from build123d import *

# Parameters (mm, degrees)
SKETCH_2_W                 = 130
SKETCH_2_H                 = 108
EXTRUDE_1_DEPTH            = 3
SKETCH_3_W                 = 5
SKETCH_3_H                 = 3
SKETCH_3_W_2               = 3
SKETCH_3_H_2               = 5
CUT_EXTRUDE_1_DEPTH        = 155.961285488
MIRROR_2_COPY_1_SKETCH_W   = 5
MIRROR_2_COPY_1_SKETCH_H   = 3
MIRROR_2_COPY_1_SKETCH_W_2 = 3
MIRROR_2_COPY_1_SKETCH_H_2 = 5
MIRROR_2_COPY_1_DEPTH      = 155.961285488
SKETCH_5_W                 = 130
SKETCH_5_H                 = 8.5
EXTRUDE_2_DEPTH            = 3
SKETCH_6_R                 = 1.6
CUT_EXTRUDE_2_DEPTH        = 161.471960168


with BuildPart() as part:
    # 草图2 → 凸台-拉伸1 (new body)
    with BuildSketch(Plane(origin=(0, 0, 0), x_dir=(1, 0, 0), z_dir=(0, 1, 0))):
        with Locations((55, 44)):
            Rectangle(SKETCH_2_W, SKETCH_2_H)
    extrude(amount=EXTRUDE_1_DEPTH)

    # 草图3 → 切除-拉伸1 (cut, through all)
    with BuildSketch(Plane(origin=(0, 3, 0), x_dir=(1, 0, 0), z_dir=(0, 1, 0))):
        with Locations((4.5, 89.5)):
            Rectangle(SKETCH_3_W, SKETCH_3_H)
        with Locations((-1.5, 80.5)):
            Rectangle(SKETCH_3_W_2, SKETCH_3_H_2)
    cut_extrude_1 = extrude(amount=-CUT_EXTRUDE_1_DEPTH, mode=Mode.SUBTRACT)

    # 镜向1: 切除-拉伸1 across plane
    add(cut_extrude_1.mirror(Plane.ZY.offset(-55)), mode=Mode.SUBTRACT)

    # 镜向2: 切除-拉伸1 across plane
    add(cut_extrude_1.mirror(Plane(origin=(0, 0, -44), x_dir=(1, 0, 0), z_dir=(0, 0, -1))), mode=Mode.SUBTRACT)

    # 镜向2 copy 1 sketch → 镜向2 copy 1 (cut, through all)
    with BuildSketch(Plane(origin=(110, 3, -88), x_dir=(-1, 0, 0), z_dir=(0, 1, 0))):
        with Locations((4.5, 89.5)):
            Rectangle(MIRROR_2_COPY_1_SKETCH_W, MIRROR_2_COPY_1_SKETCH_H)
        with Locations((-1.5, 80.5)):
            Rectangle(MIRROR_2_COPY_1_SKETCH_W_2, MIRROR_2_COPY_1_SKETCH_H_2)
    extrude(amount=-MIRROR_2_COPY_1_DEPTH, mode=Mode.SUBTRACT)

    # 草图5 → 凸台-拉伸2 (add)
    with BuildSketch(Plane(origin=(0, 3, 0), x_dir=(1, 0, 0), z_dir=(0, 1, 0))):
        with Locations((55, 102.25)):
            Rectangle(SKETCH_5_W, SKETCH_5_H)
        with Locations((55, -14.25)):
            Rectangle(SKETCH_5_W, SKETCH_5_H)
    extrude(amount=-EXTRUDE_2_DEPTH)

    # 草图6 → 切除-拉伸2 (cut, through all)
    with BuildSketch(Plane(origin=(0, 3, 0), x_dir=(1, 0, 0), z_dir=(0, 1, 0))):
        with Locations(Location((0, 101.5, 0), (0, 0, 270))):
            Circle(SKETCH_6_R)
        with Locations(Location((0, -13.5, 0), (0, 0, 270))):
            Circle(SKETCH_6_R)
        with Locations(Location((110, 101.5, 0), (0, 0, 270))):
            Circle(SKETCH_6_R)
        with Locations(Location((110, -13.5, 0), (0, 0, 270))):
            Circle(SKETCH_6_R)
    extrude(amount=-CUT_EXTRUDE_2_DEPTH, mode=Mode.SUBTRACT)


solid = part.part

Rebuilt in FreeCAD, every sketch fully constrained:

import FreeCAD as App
import Part
import Sketcher

V = App.Vector


def add_polygon(sketch, points):
    """Adds a closed chain of lines whose ends are joined by coincident constraints."""
    first, n = sketch.GeometryCount, len(points)
    for a, b in zip(points, points[1:] + points[:1]):
        sketch.addGeometry(Part.LineSegment(App.Vector(*a, 0), App.Vector(*b, 0)), False)
    for i in range(n):
        sketch.addConstraint(Sketcher.Constraint("Coincident", first + i, 2, first + (i + 1) % n, 1))

doc = App.newDocument("Part")
body = doc.addObject("PartDesign::Body", "Body")

sketch1 = doc.addObject("Sketcher::SketchObject", "Sketch")
body.addObject(sketch1)
sketch1.AttachmentSupport = (doc.XZ_Plane, [""])
sketch1.MapMode = "FlatFace"
add_polygon(sketch1, [(-10, -98), (-10, 10), (120, 10), (120, -98)])
sketch1.addConstraint(Sketcher.Constraint("Vertical", 0))
sketch1.addConstraint(Sketcher.Constraint("Horizontal", 1))
sketch1.addConstraint(Sketcher.Constraint("Vertical", 2))
sketch1.addConstraint(Sketcher.Constraint("Horizontal", 3))
sketch1.addConstraint(Sketcher.Constraint("DistanceX", 1, 1, 1, 2, 130.0))
sketch1.addConstraint(Sketcher.Constraint("DistanceY", 0, 1, 0, 2, 108.0))
sketch1.addConstraint(Sketcher.Constraint("DistanceX", 0, 2, -1, 1, 10.0))
sketch1.addConstraint(Sketcher.Constraint("DistanceY", -1, 1, 0, 2, 10.0))
pad1 = doc.addObject("PartDesign::Pad", "Pad")
body.addObject(pad1)
pad1.Profile = sketch1
pad1.Length = 3
pad1.Reversed = True

sketch2 = doc.addObject("Sketcher::SketchObject", "Sketch001")
body.addObject(sketch2)
sketch2.AttachmentSupport = (doc.XZ_Plane, [""])
sketch2.MapMode = "FlatFace"
sketch2.AttachmentOffset = App.Placement(V(0, 0, -3), App.Rotation())
add_polygon(sketch2, [(2, -91), (2, -88), (7, -88), (7, -91)])
add_polygon(sketch2, [(-3, -83), (-3, -78), (0, -78), (0, -83)])
sketch2.addConstraint(Sketcher.Constraint("Vertical", 0))
sketch2.addConstraint(Sketcher.Constraint("Horizontal", 1))
sketch2.addConstraint(Sketcher.Constraint("Vertical", 2))
sketch2.addConstraint(Sketcher.Constraint("Horizontal", 3))
sketch2.addConstraint(Sketcher.Constraint("Vertical", 4))
sketch2.addConstraint(Sketcher.Constraint("Horizontal", 5))
sketch2.addConstraint(Sketcher.Constraint("Vertical", 6))
sketch2.addConstraint(Sketcher.Constraint("Horizontal", 7))
sketch2.addConstraint(Sketcher.Constraint("PointOnObject", 5, 2, -2))
sketch2.addConstraint(Sketcher.Constraint("Equal", 7, 0))
sketch2.addConstraint(Sketcher.Constraint("Equal", 3, 4))
sketch2.addConstraint(Sketcher.Constraint("DistanceX", 1, 1, 1, 2, 5.0))
sketch2.addConstraint(Sketcher.Constraint("DistanceX", 5, 1, 5, 2, 3.0))
sketch2.addConstraint(Sketcher.Constraint("DistanceX", -1, 1, 0, 2, 2.0))
sketch2.addConstraint(Sketcher.Constraint("DistanceY", 0, 2, -1, 1, 88.0))
sketch2.addConstraint(Sketcher.Constraint("DistanceY", 4, 2, -1, 1, 78.0))
pocket1 = doc.addObject("PartDesign::Pocket", "Pocket")
body.addObject(pocket1)
pocket1.Profile = sketch2
pocket1.Type = "ThroughAll"
pocket1.Reversed = True
doc.recompute()

datumplane = doc.addObject("PartDesign::Plane", "DatumPlane")
body.addObject(datumplane)
datumplane.AttachmentSupport = (doc.YZ_Plane, [""])
datumplane.MapMode = "FlatFace"
datumplane.AttachmentOffset = App.Placement(V(0, 0, 55), App.Rotation())
mirrored = doc.addObject("PartDesign::Mirrored", "Mirrored")
body.addObject(mirrored)
mirrored.Originals = [pocket1]
mirrored.MirrorPlane = (datumplane, [""])
body.Tip = mirrored
doc.recompute()

datumplane2 = doc.addObject("PartDesign::Plane", "DatumPlane001")
body.addObject(datumplane2)
datumplane2.AttachmentSupport = (doc.XY_Plane, [""])
datumplane2.MapMode = "FlatFace"
datumplane2.AttachmentOffset = App.Placement(V(0, 0, -44), App.Rotation())
mirrored2 = doc.addObject("PartDesign::Mirrored", "Mirrored001")
body.addObject(mirrored2)
mirrored2.Originals = [pocket1]
mirrored2.MirrorPlane = (datumplane2, [""])
body.Tip = mirrored2

sketch3 = doc.addObject("Sketcher::SketchObject", "Sketch002")
body.addObject(sketch3)
sketch3.AttachmentSupport = (doc.XZ_Plane, [""])
sketch3.MapMode = "FlatFace"
sketch3.AttachmentOffset = App.Placement(V(0, 0, -3), App.Rotation())
add_polygon(sketch3, [(108, 3), (108, 0), (103, 0), (103, 3)])
add_polygon(sketch3, [(113, -5), (113, -10), (110, -10), (110, -5)])
sketch3.addConstraint(Sketcher.Constraint("Vertical", 0))
sketch3.addConstraint(Sketcher.Constraint("Horizontal", 1))
sketch3.addConstraint(Sketcher.Constraint("Vertical", 2))
sketch3.addConstraint(Sketcher.Constraint("Horizontal", 3))
sketch3.addConstraint(Sketcher.Constraint("Vertical", 4))
sketch3.addConstraint(Sketcher.Constraint("Horizontal", 5))
sketch3.addConstraint(Sketcher.Constraint("Vertical", 6))
sketch3.addConstraint(Sketcher.Constraint("Horizontal", 7))
sketch3.addConstraint(Sketcher.Constraint("PointOnObject", 0, 2, -1))
sketch3.addConstraint(Sketcher.Constraint("Equal", 7, 0))
sketch3.addConstraint(Sketcher.Constraint("Equal", 3, 4))
sketch3.addConstraint(Sketcher.Constraint("DistanceX", 1, 2, 1, 1, 5.0))
sketch3.addConstraint(Sketcher.Constraint("DistanceX", 5, 2, 5, 1, 3.0))
sketch3.addConstraint(Sketcher.Constraint("DistanceX", -1, 1, 0, 2, 108.0))
sketch3.addConstraint(Sketcher.Constraint("DistanceX", -1, 1, 4, 2, 113.0))
sketch3.addConstraint(Sketcher.Constraint("DistanceY", 4, 2, -1, 1, 10.0))
pocket2 = doc.addObject("PartDesign::Pocket", "Pocket001")
body.addObject(pocket2)
pocket2.Profile = sketch3
pocket2.Type = "ThroughAll"
pocket2.Reversed = True

sketch4 = doc.addObject("Sketcher::SketchObject", "Sketch003")
body.addObject(sketch4)
sketch4.AttachmentSupport = (doc.XZ_Plane, [""])
sketch4.MapMode = "FlatFace"
sketch4.AttachmentOffset = App.Placement(V(0, 0, -3), App.Rotation())
add_polygon(sketch4, [(-10, -106), (-10, -98), (120, -98), (120, -106)])
add_polygon(sketch4, [(-10, 10), (-10, 18), (120, 18), (120, 10)])
sketch4.addConstraint(Sketcher.Constraint("Vertical", 0))
sketch4.addConstraint(Sketcher.Constraint("Horizontal", 1))
sketch4.addConstraint(Sketcher.Constraint("Vertical", 2))
sketch4.addConstraint(Sketcher.Constraint("Horizontal", 3))
sketch4.addConstraint(Sketcher.Constraint("Vertical", 4))
sketch4.addConstraint(Sketcher.Constraint("Horizontal", 5))
sketch4.addConstraint(Sketcher.Constraint("Vertical", 6))
sketch4.addConstraint(Sketcher.Constraint("Horizontal", 7))
sketch4.addConstraint(Sketcher.Constraint("Vertical", 3, 2, 4, 2))
sketch4.addConstraint(Sketcher.Constraint("Vertical", 2, 2, 5, 2))
sketch4.addConstraint(Sketcher.Constraint("Equal", 2, 4))
sketch4.addConstraint(Sketcher.Constraint("DistanceX", 1, 1, 1, 2, 130.0))
sketch4.addConstraint(Sketcher.Constraint("DistanceY", 0, 1, 0, 2, 8.5))
sketch4.addConstraint(Sketcher.Constraint("DistanceX", 0, 2, -1, 1, 10.0))
sketch4.addConstraint(Sketcher.Constraint("DistanceY", 0, 2, -1, 1, 98.0))
sketch4.addConstraint(Sketcher.Constraint("DistanceY", -1, 1, 6, 2, 10.0))
pad2 = doc.addObject("PartDesign::Pad", "Pad001")
body.addObject(pad2)
pad2.Profile = sketch4
pad2.Length = 3

sketch5 = doc.addObject("Sketcher::SketchObject", "Sketch004")
body.addObject(sketch5)
sketch5.AttachmentSupport = (doc.XZ_Plane, [""])
sketch5.MapMode = "FlatFace"
sketch5.AttachmentOffset = App.Placement(V(0, 0, -3), App.Rotation())
sketch5.addGeometry(Part.Circle(V(0, -101.5, 0), V(0, 0, 1), 1.6), False)
sketch5.addGeometry(Part.Circle(V(0, 13.5, 0), V(0, 0, 1), 1.6), False)
sketch5.addGeometry(Part.Circle(V(110, -101.5, 0), V(0, 0, 1), 1.6), False)
sketch5.addGeometry(Part.Circle(V(110, 13.5, 0), V(0, 0, 1), 1.6), False)
sketch5.addConstraint(Sketcher.Constraint("Equal", 0, 1))
sketch5.addConstraint(Sketcher.Constraint("Equal", 1, 2))
sketch5.addConstraint(Sketcher.Constraint("Equal", 2, 3))
sketch5.addConstraint(Sketcher.Constraint("PointOnObject", 0, 3, -2))
sketch5.addConstraint(Sketcher.Constraint("PointOnObject", 1, 3, -2))
sketch5.addConstraint(Sketcher.Constraint("Horizontal", 0, 3, 2, 3))
sketch5.addConstraint(Sketcher.Constraint("Horizontal", 1, 3, 3, 3))
sketch5.addConstraint(Sketcher.Constraint("Vertical", 2, 3, 3, 3))
sketch5.addConstraint(Sketcher.Constraint("Diameter", 0, 3.2))
sketch5.addConstraint(Sketcher.Constraint("DistanceX", -1, 1, 2, 3, 110.0))
sketch5.addConstraint(Sketcher.Constraint("DistanceY", 0, 3, 1, 3, 115.0))
sketch5.addConstraint(Sketcher.Constraint("DistanceY", 0, 3, -1, 1, 101.5))
pocket3 = doc.addObject("PartDesign::Pocket", "Pocket002")
body.addObject(pocket3)
pocket3.Profile = sketch5
pocket3.Type = "ThroughAll"
pocket3.Reversed = True

doc.recompute()
